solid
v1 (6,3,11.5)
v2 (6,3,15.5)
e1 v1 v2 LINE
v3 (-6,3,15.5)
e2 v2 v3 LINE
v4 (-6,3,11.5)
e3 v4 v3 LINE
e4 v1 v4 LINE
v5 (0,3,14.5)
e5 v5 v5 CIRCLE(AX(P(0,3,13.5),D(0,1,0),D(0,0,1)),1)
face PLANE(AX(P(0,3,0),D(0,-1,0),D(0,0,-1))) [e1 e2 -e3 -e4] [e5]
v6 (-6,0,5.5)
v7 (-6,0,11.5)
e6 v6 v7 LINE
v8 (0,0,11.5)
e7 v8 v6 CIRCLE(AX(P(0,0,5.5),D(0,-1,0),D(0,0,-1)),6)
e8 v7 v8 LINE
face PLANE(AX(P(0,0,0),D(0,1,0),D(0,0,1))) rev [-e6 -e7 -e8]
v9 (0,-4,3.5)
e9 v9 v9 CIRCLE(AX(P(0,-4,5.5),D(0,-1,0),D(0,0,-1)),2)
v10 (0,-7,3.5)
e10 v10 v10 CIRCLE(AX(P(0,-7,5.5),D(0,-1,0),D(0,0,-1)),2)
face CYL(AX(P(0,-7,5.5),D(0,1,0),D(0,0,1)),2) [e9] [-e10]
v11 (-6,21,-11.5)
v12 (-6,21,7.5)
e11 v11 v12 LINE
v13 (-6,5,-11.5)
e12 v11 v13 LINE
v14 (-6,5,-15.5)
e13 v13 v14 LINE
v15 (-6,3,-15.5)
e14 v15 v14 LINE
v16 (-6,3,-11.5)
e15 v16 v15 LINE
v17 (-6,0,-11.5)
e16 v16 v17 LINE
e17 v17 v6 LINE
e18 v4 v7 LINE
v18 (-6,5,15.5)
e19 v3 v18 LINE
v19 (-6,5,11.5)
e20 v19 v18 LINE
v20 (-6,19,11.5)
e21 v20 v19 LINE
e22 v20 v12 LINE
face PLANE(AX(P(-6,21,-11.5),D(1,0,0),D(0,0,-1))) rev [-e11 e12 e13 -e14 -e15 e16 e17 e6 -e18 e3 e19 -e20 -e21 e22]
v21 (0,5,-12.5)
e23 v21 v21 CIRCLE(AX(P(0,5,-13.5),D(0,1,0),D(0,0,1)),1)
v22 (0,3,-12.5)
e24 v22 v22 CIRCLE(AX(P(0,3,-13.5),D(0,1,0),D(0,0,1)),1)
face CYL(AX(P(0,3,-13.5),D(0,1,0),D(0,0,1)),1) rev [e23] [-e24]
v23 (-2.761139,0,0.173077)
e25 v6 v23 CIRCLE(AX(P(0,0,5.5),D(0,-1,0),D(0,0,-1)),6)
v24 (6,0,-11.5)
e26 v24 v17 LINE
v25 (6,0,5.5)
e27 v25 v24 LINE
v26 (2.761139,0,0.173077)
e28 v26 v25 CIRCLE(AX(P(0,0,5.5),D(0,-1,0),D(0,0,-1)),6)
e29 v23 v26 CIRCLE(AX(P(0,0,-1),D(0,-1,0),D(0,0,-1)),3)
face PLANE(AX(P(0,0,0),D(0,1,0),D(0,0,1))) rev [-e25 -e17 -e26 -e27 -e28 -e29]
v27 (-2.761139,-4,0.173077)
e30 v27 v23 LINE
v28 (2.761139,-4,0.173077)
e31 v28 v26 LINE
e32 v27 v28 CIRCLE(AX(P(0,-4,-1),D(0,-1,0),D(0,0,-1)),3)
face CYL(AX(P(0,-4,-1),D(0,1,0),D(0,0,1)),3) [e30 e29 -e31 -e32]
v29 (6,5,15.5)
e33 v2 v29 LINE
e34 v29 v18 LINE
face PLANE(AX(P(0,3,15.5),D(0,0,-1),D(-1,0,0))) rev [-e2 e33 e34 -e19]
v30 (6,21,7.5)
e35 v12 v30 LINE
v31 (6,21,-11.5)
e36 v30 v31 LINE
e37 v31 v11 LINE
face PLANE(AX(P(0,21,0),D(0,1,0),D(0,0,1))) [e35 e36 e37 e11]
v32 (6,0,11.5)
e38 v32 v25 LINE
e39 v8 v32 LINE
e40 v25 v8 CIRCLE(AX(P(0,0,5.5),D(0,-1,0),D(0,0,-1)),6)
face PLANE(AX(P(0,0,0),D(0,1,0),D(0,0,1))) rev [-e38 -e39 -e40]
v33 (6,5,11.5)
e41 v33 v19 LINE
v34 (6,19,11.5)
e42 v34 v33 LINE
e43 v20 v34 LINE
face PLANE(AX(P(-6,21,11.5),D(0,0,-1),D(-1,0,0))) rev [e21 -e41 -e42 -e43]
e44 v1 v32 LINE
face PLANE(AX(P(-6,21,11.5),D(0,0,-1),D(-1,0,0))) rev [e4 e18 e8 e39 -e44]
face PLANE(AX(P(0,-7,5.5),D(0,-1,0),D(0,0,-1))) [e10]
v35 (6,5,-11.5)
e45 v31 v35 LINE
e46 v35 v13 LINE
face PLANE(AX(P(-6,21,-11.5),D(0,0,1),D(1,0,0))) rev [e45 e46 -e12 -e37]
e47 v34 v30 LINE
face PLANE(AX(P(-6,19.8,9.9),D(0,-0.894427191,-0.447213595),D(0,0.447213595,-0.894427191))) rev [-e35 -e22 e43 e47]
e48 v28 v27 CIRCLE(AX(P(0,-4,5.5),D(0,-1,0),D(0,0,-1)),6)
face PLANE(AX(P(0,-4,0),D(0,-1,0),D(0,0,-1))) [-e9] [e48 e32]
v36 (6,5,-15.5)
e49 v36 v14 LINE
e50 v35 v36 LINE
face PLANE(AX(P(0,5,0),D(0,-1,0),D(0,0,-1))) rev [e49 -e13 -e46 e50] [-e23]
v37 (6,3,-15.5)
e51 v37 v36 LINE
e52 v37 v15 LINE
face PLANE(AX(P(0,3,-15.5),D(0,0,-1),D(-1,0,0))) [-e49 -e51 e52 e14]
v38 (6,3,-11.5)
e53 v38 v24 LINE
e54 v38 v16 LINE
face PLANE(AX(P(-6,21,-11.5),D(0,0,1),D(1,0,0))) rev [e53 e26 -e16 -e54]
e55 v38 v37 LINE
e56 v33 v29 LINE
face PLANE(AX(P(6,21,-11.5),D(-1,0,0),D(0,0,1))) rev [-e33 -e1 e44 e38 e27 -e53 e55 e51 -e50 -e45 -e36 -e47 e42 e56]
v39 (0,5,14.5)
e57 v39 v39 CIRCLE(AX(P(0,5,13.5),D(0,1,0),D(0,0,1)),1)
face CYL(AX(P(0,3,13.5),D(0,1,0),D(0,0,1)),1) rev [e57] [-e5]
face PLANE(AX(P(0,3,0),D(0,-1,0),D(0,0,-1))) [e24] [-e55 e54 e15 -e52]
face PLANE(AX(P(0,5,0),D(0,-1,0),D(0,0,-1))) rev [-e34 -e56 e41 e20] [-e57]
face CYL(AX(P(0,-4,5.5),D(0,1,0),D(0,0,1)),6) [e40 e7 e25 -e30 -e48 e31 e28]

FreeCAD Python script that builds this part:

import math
import FreeCAD as App
import Part
import Sketcher

V = App.Vector
Q = App.Units.Quantity

doc = App.newDocument("Part")
body = doc.addObject("PartDesign::Body", "Body")

# Sketch on XZ plane
sketch1 = doc.addObject("Sketcher::SketchObject", "Sketch")
body.addObject(sketch1)
sketch1.AttachmentSupport = (doc.XZ_Plane, [""])
sketch1.MapMode = "FlatFace"
sketch1.addGeometry([
    Part.LineSegment(V(-6, -12, 0), V(-6, 12, 0)),
    Part.LineSegment(V(-6, 12, 0), V(6, 12, 0)),
    Part.LineSegment(V(6, 12, 0), V(6, -12, 0)),
    Part.LineSegment(V(6, -12, 0), V(-6, -12, 0)),
], False)
sketch1.addConstraint([
    Sketcher.Constraint("Coincident", 0, 2, 1, 1),
    Sketcher.Constraint("Coincident", 1, 2, 2, 1),
    Sketcher.Constraint("Coincident", 2, 2, 3, 1),
    Sketcher.Constraint("Coincident", 3, 2, 0, 1),
    Sketcher.Constraint("Vertical", 0),
    Sketcher.Constraint("Horizontal", 1),
    Sketcher.Constraint("Vertical", 2),
    Sketcher.Constraint("Horizontal", 3),
    Sketcher.Constraint("Symmetric", 0, 2, 2, 2, -1, 1),
    Sketcher.Constraint("DistanceX", 1, 1, 1, 2, Q("12 mm")),
    Sketcher.Constraint("DistanceY", 0, 1, 0, 2, Q("23 mm")),
])
pad1 = doc.addObject("PartDesign::Pad", "Pad")
body.addObject(pad1)
pad1.Profile = sketch1
pad1.Length = 21
pad1.Reversed = True

# Sketch on XZ plane
sketch2 = doc.addObject("Sketcher::SketchObject", "Sketch001")
body.addObject(sketch2)
sketch2.AttachmentSupport = (doc.XZ_Plane, [""])
sketch2.MapMode = "FlatFace"
sketch2.AttachmentOffset = App.Placement(V(0, 0, -5), App.Rotation())
sketch2.addGeometry([
    Part.LineSegment(V(6, 11.5, 0), V(6, 15.5, 0)),  # 0
    Part.LineSegment(V(6, 15.5, 0), V(-6, 15.5, 0)),  # 1
    Part.LineSegment(V(-6, 15.5, 0), V(-6, 11.5, 0)),  # 2
    Part.LineSegment(V(-6, 11.5, 0), V(6, 11.5, 0)),  # 3
    Part.LineSegment(V(6, -15.5, 0), V(6, -11.5, 0)),  # 4
    Part.LineSegment(V(6, -11.5, 0), V(-6, -11.5, 0)),  # 5
    Part.LineSegment(V(-6, -11.5, 0), V(-6, -15.5, 0)),  # 6
    Part.LineSegment(V(-6, -15.5, 0), V(6, -15.5, 0)),  # 7
], False)
sketch2.addConstraint([
    Sketcher.Constraint("Coincident", 0, 2, 1, 1),
    Sketcher.Constraint("Coincident", 1, 2, 2, 1),
    Sketcher.Constraint("Coincident", 2, 2, 3, 1),
    Sketcher.Constraint("Coincident", 3, 2, 0, 1),
    Sketcher.Constraint("Coincident", 4, 2, 5, 1),
    Sketcher.Constraint("Coincident", 5, 2, 6, 1),
    Sketcher.Constraint("Coincident", 6, 2, 7, 1),
    Sketcher.Constraint("Coincident", 7, 2, 4, 1),
    Sketcher.Constraint("Vertical", 0),
    Sketcher.Constraint("Horizontal", 1),
    Sketcher.Constraint("Vertical", 2),
    Sketcher.Constraint("Horizontal", 3),
    Sketcher.Constraint("Vertical", 4),
    Sketcher.Constraint("Horizontal", 5),
    Sketcher.Constraint("Vertical", 6),
    Sketcher.Constraint("Horizontal", 7),
    Sketcher.Constraint("Symmetric", 2, 2, 4, 2, -1, 1),
    Sketcher.Constraint("Symmetric", 0, 2, 6, 2, -1, 1),
    Sketcher.Constraint("Vertical", 3, 2, 4, 2),
    Sketcher.Constraint("DistanceX", 1, 2, 1, 1, Q("12 mm")),
    Sketcher.Constraint("DistanceY", 0, 1, 0, 2, Q("4 mm")),
    Sketcher.Constraint("DistanceY", 4, 2, 3, 2, Q("23 mm")),
])
pad2 = doc.addObject("PartDesign::Pad", "Pad001")
body.addObject(pad2)
pad2.Profile = sketch2
pad2.Length = 2

# Sketch on XZ plane
sketch3 = doc.addObject("Sketcher::SketchObject", "Sketch002")
body.addObject(sketch3)
sketch3.AttachmentSupport = (doc.XZ_Plane, [""])
sketch3.MapMode = "FlatFace"
sketch3.AttachmentOffset = App.Placement(V(0, 0, -5), App.Rotation())
sketch3.addGeometry(Part.Circle(V(0, 13.5, 0), V(0, 0, 1), 1), False)
sketch3.addConstraint([
    Sketcher.Constraint("PointOnObject", 0, 3, -2),
    Sketcher.Constraint("Diameter", 0, Q("2 mm")),
    Sketcher.Constraint("DistanceY", -1, 1, 0, 3, Q("13.5 mm")),
])
pocket1 = doc.addObject("PartDesign::Pocket", "Pocket")
body.addObject(pocket1)
pocket1.Profile = sketch3
pocket1.Length = 2
pocket1.Reversed = True

# Sketch on XZ plane
sketch4 = doc.addObject("Sketcher::SketchObject", "Sketch003")
body.addObject(sketch4)
sketch4.AttachmentSupport = (doc.XZ_Plane, [""])
sketch4.MapMode = "FlatFace"
sketch4.AttachmentOffset = App.Placement(V(0, 0, -5), App.Rotation())
sketch4.addGeometry(Part.Circle(V(0, -13.5, 0), V(0, 0, 1), 1), False)
sketch4.addConstraint([
    Sketcher.Constraint("PointOnObject", 0, 3, -2),
    Sketcher.Constraint("Diameter", 0, Q("2 mm")),
    Sketcher.Constraint("DistanceY", 0, 3, -1, 1, Q("13.5 mm")),
])
pocket2 = doc.addObject("PartDesign::Pocket", "Pocket001")
body.addObject(pocket2)
pocket2.Profile = sketch4
pocket2.Length = 2
pocket2.Reversed = True

# Sketch on XZ plane
sketch5 = doc.addObject("Sketcher::SketchObject", "Sketch004")
body.addObject(sketch5)
sketch5.AttachmentSupport = (doc.XZ_Plane, [""])
sketch5.MapMode = "FlatFace"
sketch5.addGeometry([
    Part.ArcOfCircle(Part.Circle(V(0, 5.5, 0), V(0, 0, 1), 6), math.radians(0), math.radians(90)),  # 0
    Part.ArcOfCircle(Part.Circle(V(0, 5.5, 0), V(0, 0, 1), 6), math.radians(90), math.radians(180)),  # 1
    Part.ArcOfCircle(Part.Circle(V(0, 5.5, 0), V(0, 0, 1), 6), math.radians(180), math.radians(243)),  # 2
    Part.ArcOfCircle(Part.Circle(V(0, -1, 0), V(0, 0, 1), 3), math.radians(157), math.radians(270)),  # 3
    Part.ArcOfCircle(Part.Circle(V(0, -1, 0), V(0, 0, 1), 3), math.radians(-90), math.radians(0)),  # 4
    Part.ArcOfCircle(Part.Circle(V(0, -1, 0), V(0, 0, 1), 3), math.radians(0), math.radians(23)),  # 5
    Part.ArcOfCircle(Part.Circle(V(0, 5.5, 0), V(0, 0, 1), 6), math.radians(-63), math.radians(0)),  # 6
], False)
sketch5.addConstraint([
    Sketcher.Constraint("Tangent", 0, 2, 1, 1),
    Sketcher.Constraint("Tangent", 1, 2, 2, 1),
    Sketcher.Constraint("Coincident", 2, 2, 3, 1),
    Sketcher.Constraint("Tangent", 3, 2, 4, 1),
    Sketcher.Constraint("Tangent", 4, 2, 5, 1),
    Sketcher.Constraint("Coincident", 5, 2, 6, 1),
    Sketcher.Constraint("Tangent", 6, 2, 0, 1),
    Sketcher.Constraint("Coincident", 2, 3, 0, 3),
    Sketcher.Constraint("Coincident", 5, 3, 3, 3),
    Sketcher.Constraint("Equal", 2, 6),
    Sketcher.Constraint("Symmetric", 2, 2, 5, 2, -2),
    Sketcher.Constraint("PointOnObject", 0, 2, -2),
    Sketcher.Constraint("PointOnObject", 3, 2, -2),
    Sketcher.Constraint("Horizontal", 6, 3, 1, 2),
    Sketcher.Constraint("Horizontal", 5, 3, 4, 2),
    Sketcher.Constraint("Horizontal", 1, 2, 6, 2),
    Sketcher.Constraint("Radius", 0, Q("6 mm")),
    Sketcher.Constraint("Radius", 3, Q("3 mm")),
    Sketcher.Constraint("DistanceY", 3, 3, -1, 1, Q("1 mm")),
    Sketcher.Constraint("DistanceY", -1, 1, 0, 3, Q("5.5 mm")),
])
pad3 = doc.addObject("PartDesign::Pad", "Pad002")
body.addObject(pad3)
pad3.Profile = sketch5
pad3.Length = 4

# Sketch on XZ plane
sketch6 = doc.addObject("Sketcher::SketchObject", "Sketch005")
body.addObject(sketch6)
sketch6.AttachmentSupport = (doc.XZ_Plane, [""])
sketch6.MapMode = "FlatFace"
sketch6.AttachmentOffset = App.Placement(V(0, 0, 4), App.Rotation())
sketch6.addGeometry(Part.Circle(V(0, 5.5, 0), V(0, 0, 1), 2), False)
sketch6.addConstraint([
    Sketcher.Constraint("PointOnObject", 0, 3, -2),
    Sketcher.Constraint("Diameter", 0, Q("4 mm")),
    Sketcher.Constraint("DistanceY", -1, 1, 0, 3, Q("5.5 mm")),
])
pad4 = doc.addObject("PartDesign::Pad", "Pad003")
body.addObject(pad4)
pad4.Profile = sketch6
pad4.Length = 3

# Sketch on YZ plane
sketch7 = doc.addObject("Sketcher::SketchObject", "Sketch006")
body.addObject(sketch7)
sketch7.AttachmentSupport = (doc.YZ_Plane, [""])
sketch7.MapMode = "FlatFace"
sketch7.AttachmentOffset = App.Placement(V(0, 0, 6), App.Rotation())
sketch7.addGeometry([
    Part.LineSegment(V(21, 11.5, 0), V(19, 11.5, 0)),
    Part.LineSegment(V(19, 11.5, 0), V(21, 7.5, 0)),
    Part.LineSegment(V(21, 7.5, 0), V(21, 11.5, 0)),
], False)
sketch7.addConstraint([
    Sketcher.Constraint("Coincident", 0, 2, 1, 1),
    Sketcher.Constraint("Coincident", 1, 2, 2, 1),
    Sketcher.Constraint("Coincident", 2, 2, 0, 1),
    Sketcher.Constraint("Horizontal", 0),
    Sketcher.Constraint("Vertical", 2),
    Sketcher.Constraint("DistanceX", 0, 2, 0, 1, Q("2 mm")),
    Sketcher.Constraint("DistanceY", 2, 1, 2, 2, Q("4 mm")),
    Sketcher.Constraint("DistanceX", -1, 1, 0, 2, Q("19 mm")),
    Sketcher.Constraint("DistanceY", -1, 1, 0, 2, Q("11.5 mm")),
])
pocket3 = doc.addObject("PartDesign::Pocket", "Pocket002")
body.addObject(pocket3)
pocket3.Profile = sketch7
pocket3.Type = "ThroughAll"

doc.recompute()
